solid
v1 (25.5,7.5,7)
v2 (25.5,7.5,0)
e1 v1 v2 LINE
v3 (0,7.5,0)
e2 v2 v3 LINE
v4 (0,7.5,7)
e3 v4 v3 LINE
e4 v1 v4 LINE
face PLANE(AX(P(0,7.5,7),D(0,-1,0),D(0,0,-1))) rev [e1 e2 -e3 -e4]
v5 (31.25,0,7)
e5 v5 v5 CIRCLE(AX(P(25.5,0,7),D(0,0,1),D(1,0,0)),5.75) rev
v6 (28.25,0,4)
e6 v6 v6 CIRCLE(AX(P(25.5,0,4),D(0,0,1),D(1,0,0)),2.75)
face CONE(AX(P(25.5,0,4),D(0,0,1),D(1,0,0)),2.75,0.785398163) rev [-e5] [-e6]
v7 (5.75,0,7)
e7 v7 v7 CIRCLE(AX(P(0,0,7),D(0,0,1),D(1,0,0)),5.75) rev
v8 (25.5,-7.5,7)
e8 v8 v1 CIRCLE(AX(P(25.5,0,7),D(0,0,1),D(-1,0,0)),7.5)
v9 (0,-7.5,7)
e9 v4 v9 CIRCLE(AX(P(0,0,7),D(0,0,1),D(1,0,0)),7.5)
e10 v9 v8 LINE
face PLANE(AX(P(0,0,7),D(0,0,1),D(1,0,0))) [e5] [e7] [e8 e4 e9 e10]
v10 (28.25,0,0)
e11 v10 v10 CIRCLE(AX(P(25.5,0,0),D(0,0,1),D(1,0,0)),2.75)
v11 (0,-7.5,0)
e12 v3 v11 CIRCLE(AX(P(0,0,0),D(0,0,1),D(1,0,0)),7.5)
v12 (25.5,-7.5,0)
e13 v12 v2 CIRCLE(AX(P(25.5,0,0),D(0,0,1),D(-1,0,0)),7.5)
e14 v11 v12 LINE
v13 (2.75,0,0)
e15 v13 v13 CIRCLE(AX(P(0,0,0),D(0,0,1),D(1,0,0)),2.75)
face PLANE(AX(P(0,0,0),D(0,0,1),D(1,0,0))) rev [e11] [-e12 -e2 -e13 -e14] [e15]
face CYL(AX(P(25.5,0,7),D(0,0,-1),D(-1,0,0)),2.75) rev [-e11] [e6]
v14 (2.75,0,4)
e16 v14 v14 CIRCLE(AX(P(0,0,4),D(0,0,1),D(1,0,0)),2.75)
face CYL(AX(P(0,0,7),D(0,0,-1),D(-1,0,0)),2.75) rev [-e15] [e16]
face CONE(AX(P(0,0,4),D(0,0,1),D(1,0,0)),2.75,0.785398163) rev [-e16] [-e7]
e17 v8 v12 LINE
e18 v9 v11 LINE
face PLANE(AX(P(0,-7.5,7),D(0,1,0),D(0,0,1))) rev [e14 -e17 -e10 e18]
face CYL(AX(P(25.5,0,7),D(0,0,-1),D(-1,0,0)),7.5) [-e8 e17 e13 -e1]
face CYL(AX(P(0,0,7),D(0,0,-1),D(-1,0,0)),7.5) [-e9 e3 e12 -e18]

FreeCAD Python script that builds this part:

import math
import FreeCAD as App
import Part
import Sketcher

V = App.Vector


def edges_at(feature, points):
    """Names of the edges that pass closest to the given points."""
    edges = feature.Shape.Edges
    near = lambda p: min(range(len(edges)), key=lambda i: edges[i].distToShape(Part.Vertex(*p))[0])
    return sorted({f"Edge{near(p) + 1}" for p in points})

doc = App.newDocument("Part")
body = doc.addObject("PartDesign::Body", "Body")

sketch1 = body.newObject("Sketcher::SketchObject", "Sketch")
sketch1.AttachmentSupport = (doc.getObject("XY_Plane"), [""])
sketch1.MapMode = "FlatFace"
sketch1.addGeometry([
    Part.LineSegment(V(0, -7.5, 0), V(25.5, -7.5, 0)),
    Part.ArcOfCircle(Part.Circle(V(25.5, 0, 0), V(0, 0, 1), 7.5), math.radians(-90), math.radians(90)),
    Part.LineSegment(V(25.5, 7.5, 0), V(0, 7.5, 0)),
    Part.ArcOfCircle(Part.Circle(V(0, 0, 0), V(0, 0, 1), 7.5), math.radians(90), math.radians(270)),
    Part.Circle(V(0, 0, 0), V(0, 0, 1), 2.75),
    Part.Circle(V(25.5, 0, 0), V(0, 0, 1), 2.75),
], False)
sketch1.addConstraint([
    Sketcher.Constraint("Tangent", 0, 2, 1, 1),
    Sketcher.Constraint("Tangent", 1, 2, 2, 1),
    Sketcher.Constraint("Tangent", 2, 2, 3, 1),
    Sketcher.Constraint("Tangent", 3, 2, 0, 1),
    Sketcher.Constraint("Horizontal", 0),
    Sketcher.Constraint("Horizontal", 2),
    Sketcher.Constraint("Coincident", 3, 3, -1, 1),
    Sketcher.Constraint("Coincident", 4, 3, -1, 1),
    Sketcher.Constraint("Coincident", 5, 3, 1, 3),
    Sketcher.Constraint("Equal", 4, 5),
    Sketcher.Constraint("Diameter", 4, 5.5),
    Sketcher.Constraint("Radius", 1, 7.5),
    Sketcher.Constraint("DistanceX", 0, 1, 0, 2, 25.5),
])
pad1 = body.newObject("PartDesign::Pad", "Pad")
pad1.Profile = sketch1
pad1.Length = 7
doc.recompute()

chamfer = body.newObject("PartDesign::Chamfer", "Chamfer")
chamfer.Base = (pad1, edges_at(pad1, [(-2.75, 0, 7), (22.75, 0, 7)]))
chamfer.Size = 3

doc.recompute()
